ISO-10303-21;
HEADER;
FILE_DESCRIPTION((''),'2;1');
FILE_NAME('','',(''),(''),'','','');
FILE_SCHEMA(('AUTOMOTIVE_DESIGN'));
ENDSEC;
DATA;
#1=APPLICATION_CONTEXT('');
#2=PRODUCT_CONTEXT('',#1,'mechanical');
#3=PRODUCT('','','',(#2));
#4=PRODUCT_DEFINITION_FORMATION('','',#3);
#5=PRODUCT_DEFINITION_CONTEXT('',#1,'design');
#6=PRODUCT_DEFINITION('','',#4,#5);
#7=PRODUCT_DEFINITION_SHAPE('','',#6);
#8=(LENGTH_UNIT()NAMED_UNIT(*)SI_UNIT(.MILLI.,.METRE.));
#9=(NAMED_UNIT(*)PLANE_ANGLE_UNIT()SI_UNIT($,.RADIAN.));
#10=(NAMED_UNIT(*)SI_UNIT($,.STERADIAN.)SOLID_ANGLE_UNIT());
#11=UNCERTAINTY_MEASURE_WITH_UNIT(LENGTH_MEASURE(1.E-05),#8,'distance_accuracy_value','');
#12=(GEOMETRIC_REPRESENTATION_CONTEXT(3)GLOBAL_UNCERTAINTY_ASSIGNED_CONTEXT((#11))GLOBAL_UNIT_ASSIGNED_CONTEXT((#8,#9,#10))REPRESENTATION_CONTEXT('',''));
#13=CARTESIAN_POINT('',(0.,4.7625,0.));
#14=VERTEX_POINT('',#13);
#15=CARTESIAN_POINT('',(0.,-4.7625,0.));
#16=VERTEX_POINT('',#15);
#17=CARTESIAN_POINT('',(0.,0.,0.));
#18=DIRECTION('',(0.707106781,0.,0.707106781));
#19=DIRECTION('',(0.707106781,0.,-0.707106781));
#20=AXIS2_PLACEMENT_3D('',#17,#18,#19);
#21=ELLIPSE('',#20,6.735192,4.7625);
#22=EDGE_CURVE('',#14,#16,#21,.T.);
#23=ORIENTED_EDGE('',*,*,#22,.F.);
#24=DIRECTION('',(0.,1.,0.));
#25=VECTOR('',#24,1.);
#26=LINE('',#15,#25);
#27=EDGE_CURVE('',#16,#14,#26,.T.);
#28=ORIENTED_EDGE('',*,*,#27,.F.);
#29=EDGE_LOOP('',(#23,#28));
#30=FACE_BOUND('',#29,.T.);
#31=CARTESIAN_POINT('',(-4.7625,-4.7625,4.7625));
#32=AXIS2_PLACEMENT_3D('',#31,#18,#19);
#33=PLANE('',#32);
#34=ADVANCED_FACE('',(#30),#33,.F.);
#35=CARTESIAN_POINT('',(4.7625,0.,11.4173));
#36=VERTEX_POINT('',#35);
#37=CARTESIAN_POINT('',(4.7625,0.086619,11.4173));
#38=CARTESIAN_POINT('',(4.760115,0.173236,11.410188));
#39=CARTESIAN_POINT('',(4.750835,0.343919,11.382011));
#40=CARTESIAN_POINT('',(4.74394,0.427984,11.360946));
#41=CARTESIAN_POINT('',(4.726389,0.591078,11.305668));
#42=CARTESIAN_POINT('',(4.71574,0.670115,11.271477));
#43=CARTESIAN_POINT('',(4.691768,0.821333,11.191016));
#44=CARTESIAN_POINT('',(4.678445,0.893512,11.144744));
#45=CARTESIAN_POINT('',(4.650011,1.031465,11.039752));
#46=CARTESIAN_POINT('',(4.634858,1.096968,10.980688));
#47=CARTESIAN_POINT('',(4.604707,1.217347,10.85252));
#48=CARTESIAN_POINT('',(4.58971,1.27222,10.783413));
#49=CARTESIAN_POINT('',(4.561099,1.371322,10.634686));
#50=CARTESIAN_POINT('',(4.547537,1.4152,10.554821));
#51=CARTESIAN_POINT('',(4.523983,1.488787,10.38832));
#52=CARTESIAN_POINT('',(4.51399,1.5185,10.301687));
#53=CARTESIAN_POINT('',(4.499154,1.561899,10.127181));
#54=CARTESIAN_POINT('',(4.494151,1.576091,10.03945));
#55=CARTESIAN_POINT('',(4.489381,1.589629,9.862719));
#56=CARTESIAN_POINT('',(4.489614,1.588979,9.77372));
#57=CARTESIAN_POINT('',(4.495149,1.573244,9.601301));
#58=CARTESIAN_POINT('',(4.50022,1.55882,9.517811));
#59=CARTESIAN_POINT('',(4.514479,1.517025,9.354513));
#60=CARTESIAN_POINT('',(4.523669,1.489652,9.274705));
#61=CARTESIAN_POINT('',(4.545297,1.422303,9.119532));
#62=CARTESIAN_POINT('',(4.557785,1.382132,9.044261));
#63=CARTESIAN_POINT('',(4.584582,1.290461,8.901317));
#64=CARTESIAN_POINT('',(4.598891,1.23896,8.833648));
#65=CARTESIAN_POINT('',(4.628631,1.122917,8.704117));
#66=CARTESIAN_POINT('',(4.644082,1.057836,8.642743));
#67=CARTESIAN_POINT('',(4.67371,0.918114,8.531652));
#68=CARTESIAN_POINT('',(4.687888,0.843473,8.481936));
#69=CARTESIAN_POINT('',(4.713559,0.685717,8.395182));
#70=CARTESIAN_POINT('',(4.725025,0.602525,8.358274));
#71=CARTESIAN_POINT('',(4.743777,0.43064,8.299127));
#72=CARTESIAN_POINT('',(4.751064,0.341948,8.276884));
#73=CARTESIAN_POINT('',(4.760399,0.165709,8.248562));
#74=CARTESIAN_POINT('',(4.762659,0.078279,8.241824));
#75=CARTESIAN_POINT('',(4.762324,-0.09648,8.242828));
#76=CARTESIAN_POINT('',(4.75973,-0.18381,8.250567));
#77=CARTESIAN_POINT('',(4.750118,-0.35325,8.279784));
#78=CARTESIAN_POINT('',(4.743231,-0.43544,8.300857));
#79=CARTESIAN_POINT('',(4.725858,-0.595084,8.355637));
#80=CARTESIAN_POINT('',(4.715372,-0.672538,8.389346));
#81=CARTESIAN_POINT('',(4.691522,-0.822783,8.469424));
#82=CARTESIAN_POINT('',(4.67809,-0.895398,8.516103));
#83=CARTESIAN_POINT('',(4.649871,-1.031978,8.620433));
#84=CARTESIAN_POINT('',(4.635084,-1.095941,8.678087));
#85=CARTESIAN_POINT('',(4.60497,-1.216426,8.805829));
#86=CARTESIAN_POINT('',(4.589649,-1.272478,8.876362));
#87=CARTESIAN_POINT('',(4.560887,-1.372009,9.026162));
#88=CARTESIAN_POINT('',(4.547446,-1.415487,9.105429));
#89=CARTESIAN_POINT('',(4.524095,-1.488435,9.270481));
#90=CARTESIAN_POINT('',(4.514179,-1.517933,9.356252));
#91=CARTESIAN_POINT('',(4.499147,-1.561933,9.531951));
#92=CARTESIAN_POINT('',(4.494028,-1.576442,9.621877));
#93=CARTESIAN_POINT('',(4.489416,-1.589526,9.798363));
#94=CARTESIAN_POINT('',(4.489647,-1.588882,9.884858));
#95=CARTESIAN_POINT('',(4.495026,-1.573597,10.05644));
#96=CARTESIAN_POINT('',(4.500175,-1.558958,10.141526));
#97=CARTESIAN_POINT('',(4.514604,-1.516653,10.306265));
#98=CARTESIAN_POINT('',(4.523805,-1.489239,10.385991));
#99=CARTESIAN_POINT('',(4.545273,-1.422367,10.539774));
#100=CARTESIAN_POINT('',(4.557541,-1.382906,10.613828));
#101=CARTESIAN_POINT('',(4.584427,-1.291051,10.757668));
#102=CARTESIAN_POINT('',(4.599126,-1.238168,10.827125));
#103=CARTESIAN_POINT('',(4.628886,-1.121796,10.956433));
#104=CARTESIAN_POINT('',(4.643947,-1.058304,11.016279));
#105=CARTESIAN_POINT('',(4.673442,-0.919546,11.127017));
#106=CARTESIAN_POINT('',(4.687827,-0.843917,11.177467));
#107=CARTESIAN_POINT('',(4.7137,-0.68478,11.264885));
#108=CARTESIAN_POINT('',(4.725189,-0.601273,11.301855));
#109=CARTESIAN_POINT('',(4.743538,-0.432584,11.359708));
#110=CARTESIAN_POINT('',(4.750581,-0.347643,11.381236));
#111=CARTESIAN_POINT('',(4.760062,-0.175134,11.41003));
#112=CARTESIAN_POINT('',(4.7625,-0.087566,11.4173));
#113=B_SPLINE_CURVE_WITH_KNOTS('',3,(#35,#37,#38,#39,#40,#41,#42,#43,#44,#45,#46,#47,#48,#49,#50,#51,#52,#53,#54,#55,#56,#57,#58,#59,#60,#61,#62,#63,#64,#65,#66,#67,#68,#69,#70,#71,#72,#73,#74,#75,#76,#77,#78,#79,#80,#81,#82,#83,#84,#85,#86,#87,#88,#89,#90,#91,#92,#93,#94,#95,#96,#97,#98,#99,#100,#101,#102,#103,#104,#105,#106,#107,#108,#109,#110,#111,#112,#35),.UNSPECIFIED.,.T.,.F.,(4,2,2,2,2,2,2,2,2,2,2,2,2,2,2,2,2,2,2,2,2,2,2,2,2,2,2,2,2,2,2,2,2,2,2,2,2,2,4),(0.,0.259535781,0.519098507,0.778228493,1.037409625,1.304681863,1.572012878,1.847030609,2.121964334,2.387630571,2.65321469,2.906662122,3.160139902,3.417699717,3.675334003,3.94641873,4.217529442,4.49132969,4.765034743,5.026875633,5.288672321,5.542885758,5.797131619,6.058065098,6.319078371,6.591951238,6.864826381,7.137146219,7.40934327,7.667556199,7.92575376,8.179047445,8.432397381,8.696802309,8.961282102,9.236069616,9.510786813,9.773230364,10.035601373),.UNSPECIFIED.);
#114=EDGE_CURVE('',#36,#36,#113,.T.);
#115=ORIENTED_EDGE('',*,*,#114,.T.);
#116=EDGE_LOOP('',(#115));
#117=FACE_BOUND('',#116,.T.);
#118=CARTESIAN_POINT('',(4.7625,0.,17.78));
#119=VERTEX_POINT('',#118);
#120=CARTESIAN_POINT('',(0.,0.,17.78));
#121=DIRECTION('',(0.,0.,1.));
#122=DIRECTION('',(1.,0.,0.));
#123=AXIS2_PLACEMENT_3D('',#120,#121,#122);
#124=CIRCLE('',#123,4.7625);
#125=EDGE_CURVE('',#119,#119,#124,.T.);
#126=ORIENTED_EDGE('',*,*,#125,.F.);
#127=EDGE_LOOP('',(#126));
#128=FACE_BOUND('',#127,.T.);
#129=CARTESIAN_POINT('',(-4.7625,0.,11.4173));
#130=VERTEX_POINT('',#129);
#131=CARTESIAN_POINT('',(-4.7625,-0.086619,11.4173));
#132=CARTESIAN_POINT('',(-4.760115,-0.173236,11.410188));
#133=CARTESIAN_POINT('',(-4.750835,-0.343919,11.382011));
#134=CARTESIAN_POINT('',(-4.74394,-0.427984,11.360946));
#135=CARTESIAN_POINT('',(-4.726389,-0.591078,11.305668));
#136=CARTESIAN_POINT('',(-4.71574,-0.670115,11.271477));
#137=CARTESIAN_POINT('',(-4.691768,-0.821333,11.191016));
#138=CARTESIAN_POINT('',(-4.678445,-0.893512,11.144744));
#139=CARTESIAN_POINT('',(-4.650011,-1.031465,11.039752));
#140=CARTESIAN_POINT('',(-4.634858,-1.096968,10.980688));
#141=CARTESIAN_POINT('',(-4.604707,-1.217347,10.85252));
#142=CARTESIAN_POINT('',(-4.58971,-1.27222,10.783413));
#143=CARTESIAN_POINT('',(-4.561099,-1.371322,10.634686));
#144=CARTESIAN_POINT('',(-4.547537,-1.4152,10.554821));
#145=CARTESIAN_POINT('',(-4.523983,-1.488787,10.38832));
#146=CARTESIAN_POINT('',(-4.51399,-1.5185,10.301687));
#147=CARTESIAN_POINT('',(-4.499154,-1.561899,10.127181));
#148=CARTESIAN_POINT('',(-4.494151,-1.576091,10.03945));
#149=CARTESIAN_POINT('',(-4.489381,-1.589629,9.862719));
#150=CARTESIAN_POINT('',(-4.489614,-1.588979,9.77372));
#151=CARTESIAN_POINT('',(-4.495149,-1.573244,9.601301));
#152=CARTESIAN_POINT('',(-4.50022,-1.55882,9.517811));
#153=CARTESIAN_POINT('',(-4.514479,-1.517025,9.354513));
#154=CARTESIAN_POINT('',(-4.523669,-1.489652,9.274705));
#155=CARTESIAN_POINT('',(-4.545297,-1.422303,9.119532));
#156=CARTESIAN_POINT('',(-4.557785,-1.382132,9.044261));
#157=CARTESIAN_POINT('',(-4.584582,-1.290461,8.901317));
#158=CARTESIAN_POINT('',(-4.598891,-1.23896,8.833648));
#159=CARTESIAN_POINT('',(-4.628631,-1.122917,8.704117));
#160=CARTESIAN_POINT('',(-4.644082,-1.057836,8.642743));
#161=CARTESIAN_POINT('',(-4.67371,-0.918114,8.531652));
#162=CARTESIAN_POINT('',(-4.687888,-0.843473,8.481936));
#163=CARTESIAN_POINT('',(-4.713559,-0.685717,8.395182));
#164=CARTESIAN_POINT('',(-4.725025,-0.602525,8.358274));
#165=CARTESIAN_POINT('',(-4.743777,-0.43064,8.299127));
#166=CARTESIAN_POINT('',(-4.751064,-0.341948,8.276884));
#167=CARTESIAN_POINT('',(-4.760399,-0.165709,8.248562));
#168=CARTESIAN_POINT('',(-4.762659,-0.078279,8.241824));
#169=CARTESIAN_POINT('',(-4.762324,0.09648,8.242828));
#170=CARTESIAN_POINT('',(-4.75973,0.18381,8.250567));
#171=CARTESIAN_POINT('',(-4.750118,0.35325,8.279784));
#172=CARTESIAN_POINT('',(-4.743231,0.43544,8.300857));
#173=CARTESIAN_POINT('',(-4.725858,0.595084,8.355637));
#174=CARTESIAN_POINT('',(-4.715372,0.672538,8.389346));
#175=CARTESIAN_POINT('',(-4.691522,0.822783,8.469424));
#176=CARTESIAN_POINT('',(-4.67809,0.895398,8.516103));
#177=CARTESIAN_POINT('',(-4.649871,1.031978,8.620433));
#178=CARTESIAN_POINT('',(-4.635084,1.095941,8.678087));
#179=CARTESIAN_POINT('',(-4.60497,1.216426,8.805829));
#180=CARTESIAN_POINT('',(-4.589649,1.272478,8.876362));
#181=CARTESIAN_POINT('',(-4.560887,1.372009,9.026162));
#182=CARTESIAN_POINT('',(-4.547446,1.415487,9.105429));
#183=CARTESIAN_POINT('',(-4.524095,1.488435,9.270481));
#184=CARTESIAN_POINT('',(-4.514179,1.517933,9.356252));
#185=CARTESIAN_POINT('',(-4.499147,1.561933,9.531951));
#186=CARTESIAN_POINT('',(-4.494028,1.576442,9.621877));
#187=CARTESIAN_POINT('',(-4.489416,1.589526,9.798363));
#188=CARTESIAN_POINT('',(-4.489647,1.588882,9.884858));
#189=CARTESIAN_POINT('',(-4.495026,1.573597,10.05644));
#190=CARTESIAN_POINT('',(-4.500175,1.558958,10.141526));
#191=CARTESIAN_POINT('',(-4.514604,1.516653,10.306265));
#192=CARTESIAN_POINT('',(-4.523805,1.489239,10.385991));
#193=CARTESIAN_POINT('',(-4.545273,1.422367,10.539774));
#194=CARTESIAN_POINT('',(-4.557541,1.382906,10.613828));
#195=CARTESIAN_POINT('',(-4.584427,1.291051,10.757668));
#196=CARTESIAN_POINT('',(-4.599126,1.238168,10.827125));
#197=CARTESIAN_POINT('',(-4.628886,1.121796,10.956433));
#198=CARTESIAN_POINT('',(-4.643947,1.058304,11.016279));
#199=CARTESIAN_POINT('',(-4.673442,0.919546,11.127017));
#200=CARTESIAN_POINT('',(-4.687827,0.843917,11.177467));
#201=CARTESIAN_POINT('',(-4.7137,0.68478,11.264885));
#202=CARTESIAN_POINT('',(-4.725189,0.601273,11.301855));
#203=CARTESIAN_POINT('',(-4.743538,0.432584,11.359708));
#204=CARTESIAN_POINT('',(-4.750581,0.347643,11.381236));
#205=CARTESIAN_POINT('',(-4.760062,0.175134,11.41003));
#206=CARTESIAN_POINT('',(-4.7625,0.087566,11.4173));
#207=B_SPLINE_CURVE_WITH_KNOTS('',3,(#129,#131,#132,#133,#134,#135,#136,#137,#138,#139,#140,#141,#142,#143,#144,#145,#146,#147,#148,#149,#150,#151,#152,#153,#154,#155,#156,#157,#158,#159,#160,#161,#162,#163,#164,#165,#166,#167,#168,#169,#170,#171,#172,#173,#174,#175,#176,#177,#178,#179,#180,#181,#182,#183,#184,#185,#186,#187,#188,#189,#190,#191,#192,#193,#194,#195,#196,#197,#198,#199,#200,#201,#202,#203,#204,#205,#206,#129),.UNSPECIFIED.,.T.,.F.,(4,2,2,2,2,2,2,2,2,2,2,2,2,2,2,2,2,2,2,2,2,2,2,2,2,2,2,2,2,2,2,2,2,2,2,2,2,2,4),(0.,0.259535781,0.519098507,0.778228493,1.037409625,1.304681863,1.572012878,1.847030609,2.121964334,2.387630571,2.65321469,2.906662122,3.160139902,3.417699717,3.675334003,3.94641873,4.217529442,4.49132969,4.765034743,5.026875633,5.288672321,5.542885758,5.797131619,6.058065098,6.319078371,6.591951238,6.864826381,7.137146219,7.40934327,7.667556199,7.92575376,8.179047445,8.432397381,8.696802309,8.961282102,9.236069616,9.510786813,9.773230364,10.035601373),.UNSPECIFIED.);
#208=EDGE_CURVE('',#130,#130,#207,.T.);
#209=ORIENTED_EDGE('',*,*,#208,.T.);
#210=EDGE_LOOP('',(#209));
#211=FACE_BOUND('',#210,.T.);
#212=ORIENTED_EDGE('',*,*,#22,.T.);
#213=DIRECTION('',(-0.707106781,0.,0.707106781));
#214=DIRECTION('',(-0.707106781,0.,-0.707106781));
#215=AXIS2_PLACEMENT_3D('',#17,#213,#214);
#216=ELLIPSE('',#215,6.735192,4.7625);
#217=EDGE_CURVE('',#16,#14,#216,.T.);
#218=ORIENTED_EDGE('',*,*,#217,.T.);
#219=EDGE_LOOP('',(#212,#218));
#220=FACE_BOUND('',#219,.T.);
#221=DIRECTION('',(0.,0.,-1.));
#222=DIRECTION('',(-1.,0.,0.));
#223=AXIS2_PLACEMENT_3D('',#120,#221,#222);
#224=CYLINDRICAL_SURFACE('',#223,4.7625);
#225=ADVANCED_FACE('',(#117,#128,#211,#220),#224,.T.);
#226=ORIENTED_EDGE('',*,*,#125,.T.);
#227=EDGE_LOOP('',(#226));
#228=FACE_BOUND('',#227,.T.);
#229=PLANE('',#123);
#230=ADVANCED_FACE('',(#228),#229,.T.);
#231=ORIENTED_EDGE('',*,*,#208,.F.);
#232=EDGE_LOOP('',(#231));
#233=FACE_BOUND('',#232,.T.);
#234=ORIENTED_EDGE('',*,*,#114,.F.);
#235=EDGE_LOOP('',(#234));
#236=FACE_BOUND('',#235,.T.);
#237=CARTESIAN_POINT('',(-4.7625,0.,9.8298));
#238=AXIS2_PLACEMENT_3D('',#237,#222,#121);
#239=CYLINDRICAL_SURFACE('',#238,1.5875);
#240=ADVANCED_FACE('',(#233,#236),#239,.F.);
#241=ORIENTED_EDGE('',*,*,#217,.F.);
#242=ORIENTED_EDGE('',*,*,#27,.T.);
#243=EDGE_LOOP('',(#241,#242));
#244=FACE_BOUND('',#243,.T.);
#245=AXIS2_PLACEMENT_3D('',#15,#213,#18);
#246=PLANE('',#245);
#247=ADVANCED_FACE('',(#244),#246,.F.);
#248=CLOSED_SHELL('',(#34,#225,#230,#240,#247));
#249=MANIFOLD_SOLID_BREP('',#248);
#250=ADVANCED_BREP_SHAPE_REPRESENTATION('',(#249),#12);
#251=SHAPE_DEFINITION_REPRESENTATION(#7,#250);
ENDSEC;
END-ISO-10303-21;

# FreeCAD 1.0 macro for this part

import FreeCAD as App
import Part
import Sketcher
from FreeCAD import Vector
Q = App.Units.Quantity


def add_polygon(sketch, points):
    """Adds a closed chain of lines whose ends are joined by coincident constraints."""
    first, n = sketch.GeometryCount, len(points)
    for a, b in zip(points, points[1:] + points[:1]):
        sketch.addGeometry(Part.LineSegment(App.Vector(*a, 0), App.Vector(*b, 0)), False)
    for i in range(n):
        sketch.addConstraint(Sketcher.Constraint("Coincident", first + i, 2, first + (i + 1) % n, 1))

doc = App.newDocument("Part")
body = doc.addObject("PartDesign::Body", "Body")

# Sketch on XY plane
sketch1 = doc.addObject("Sketcher::SketchObject", "Sketch")
body.addObject(sketch1)
sketch1.AttachmentSupport = (doc.XY_Plane, [""])
sketch1.MapMode = "FlatFace"
sketch1.addGeometry(Part.Circle(Vector(0, 0, 0), Vector(0, 0, 1), 4.8), False)
sketch1.addConstraint([
    Sketcher.Constraint("Coincident", 0, 3, -1, 1),
    Sketcher.Constraint("Diameter", 0, Q("0.375 in")),
])
pad1 = doc.addObject("PartDesign::Pad", "Pad")
body.addObject(pad1)
pad1.Profile = sketch1
pad1.Length = Q("0.7 in")

# Sketch on XZ plane
sketch2 = doc.addObject("Sketcher::SketchObject", "Sketch001")
body.addObject(sketch2)
sketch2.AttachmentSupport = (doc.XZ_Plane, [""])
sketch2.MapMode = "FlatFace"
add_polygon(sketch2, [(0, 0), (5, 5), (5, -2), (-5, -2), (-5, 5)])  # lines 0-4
sketch2.addConstraint([
    Sketcher.Constraint("Vertical", 1),
    Sketcher.Constraint("Horizontal", 2),
    Sketcher.Constraint("Vertical", 3),
    Sketcher.Constraint("Coincident", 4, 2, -1, 1),
    Sketcher.Constraint("Symmetric", 0, 2, 3, 2, -2),
    Sketcher.Constraint("Perpendicular", 0, 4),
    Sketcher.Constraint("DistanceX", 2, 2, 2, 1, Q("0.375 in")),
    Sketcher.Constraint("DistanceY", 1, 2, 1, 1, 6.667697),
])
pocket1 = doc.addObject("PartDesign::Pocket", "Pocket")
body.addObject(pocket1)
pocket1.Profile = sketch2
pocket1.Type = "ThroughAll"
pocket1.Midplane = True

# Sketch on YZ plane
sketch3 = doc.addObject("Sketcher::SketchObject", "Sketch002")
body.addObject(sketch3)
sketch3.AttachmentSupport = (doc.YZ_Plane, [""])
sketch3.MapMode = "FlatFace"
sketch3.AttachmentOffset = App.Placement(Vector(0, 0, -0.1875 * 25.4), App.Rotation())
sketch3.addGeometry(Part.Circle(Vector(0, 9.8, 0), Vector(0, 0, 1), 1.6), False)
sketch3.addConstraint([
    Sketcher.Constraint("PointOnObject", 0, 3, -2),
    Sketcher.Constraint("Diameter", 0, Q("0.125 in")),
    Sketcher.Constraint("DistanceY", -1, 1, 0, 3, Q("0.387 in")),
])
doc.recompute()
hole = doc.addObject("PartDesign::Hole", "Hole")
body.addObject(hole)
hole.Profile = sketch3
hole.ThreadType = "None"
hole.Diameter = Q("0.125 in")
hole.DepthType = "ThroughAll"
hole.Reversed = True

doc.recompute()
